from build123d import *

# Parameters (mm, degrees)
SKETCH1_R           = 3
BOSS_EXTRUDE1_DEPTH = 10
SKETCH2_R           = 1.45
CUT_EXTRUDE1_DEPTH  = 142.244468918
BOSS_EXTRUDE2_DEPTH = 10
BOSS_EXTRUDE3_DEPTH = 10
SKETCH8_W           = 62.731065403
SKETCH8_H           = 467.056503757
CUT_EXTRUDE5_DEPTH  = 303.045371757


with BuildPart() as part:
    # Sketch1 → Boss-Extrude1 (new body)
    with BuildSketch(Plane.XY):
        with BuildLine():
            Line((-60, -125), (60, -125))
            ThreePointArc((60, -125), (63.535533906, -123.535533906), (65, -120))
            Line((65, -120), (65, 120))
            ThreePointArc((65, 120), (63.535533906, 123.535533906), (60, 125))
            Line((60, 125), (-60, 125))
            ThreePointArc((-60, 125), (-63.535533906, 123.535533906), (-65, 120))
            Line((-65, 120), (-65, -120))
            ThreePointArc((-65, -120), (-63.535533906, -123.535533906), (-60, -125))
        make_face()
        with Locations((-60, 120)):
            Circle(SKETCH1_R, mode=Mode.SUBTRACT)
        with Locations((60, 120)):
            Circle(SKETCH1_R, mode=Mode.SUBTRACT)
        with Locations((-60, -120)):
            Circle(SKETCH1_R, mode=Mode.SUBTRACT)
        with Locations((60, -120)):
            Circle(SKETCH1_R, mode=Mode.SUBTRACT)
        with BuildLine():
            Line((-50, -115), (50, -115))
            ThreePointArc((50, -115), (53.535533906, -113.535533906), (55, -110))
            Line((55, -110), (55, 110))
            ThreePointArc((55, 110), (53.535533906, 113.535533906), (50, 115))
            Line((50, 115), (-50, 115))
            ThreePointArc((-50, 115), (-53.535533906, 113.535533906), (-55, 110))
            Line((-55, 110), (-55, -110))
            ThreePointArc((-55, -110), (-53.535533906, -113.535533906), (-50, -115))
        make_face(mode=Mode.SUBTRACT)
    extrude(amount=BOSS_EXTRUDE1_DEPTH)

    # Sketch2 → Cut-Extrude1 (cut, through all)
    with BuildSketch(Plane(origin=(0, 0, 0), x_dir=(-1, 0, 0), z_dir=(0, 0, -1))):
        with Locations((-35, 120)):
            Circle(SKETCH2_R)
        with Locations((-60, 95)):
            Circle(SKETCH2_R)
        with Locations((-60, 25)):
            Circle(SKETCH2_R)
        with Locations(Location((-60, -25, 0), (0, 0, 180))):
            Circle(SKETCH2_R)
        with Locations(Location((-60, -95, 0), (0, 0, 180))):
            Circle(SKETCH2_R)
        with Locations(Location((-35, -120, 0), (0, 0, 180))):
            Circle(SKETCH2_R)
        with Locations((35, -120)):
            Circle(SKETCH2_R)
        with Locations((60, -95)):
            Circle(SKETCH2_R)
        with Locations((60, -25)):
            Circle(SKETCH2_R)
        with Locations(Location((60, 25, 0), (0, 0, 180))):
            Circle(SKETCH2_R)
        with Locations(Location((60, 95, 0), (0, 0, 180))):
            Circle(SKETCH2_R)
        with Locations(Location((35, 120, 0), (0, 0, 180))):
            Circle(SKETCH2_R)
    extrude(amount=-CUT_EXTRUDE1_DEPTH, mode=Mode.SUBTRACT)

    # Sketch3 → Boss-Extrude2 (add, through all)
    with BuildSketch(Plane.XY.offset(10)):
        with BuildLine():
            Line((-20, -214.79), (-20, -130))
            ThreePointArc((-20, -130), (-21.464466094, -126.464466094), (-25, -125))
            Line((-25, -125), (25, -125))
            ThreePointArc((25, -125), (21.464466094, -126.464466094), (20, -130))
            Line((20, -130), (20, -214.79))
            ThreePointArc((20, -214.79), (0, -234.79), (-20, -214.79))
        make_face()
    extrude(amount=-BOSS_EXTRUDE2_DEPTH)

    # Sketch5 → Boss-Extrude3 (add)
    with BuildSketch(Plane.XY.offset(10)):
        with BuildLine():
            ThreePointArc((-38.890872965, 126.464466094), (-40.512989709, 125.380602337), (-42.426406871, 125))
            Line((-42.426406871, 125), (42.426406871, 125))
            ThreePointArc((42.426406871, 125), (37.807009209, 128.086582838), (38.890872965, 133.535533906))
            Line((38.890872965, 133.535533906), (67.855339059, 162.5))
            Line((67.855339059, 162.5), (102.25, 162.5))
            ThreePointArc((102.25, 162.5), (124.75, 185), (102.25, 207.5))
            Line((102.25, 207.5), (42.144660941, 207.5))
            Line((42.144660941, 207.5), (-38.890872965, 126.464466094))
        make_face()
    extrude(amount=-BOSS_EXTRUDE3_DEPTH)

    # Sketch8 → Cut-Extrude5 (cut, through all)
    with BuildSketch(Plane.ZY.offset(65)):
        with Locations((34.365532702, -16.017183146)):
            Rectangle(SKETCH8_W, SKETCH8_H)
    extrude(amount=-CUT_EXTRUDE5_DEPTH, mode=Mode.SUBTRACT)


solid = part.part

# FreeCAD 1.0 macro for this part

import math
import FreeCAD as App
import Part
import Sketcher
from FreeCAD import Vector
Q = App.Units.Quantity

doc = App.newDocument("Part")
body = doc.addObject("PartDesign::Body", "Body")

# Sketch on XY plane
sketch1 = body.newObject("Sketcher::SketchObject", "Sketch")
sketch1.AttachmentSupport = (doc.getObject("XY_Plane"), [""])
sketch1.MapMode = "FlatFace"
sketch1.addGeometry([
    Part.LineSegment(Vector(-60, -125, 0), Vector(60, -125, 0)),  # 0
    Part.ArcOfCircle(Part.Circle(Vector(60, -120, 0), Vector(0, 0, 1), 5), math.radians(-90), math.radians(0)),  # 1
    Part.LineSegment(Vector(65, -120, 0), Vector(65, 120, 0)),  # 2
    Part.ArcOfCircle(Part.Circle(Vector(60, 120, 0), Vector(0, 0, 1), 5), math.radians(0), math.radians(90)),  # 3
    Part.LineSegment(Vector(60, 125, 0), Vector(-60, 125, 0)),  # 4
    Part.ArcOfCircle(Part.Circle(Vector(-60, 120, 0), Vector(0, 0, 1), 5), math.radians(90), math.radians(180)),  # 5
    Part.LineSegment(Vector(-65, 120, 0), Vector(-65, -120, 0)),  # 6
    Part.ArcOfCircle(Part.Circle(Vector(-60, -120, 0), Vector(0, 0, 1), 5), math.radians(180), math.radians(270)),  # 7
    Part.Circle(Vector(-60, -120, 0), Vector(0, 0, 1), 3),  # 8
    Part.Circle(Vector(60, -120, 0), Vector(0, 0, 1), 3),  # 9
    Part.Circle(Vector(-60, 120, 0), Vector(0, 0, 1), 3),  # 10
    Part.LineSegment(Vector(50, -115, 0), Vector(-50, -115, 0)),  # 11
    Part.ArcOfCircle(Part.Circle(Vector(-50, -110, 0), Vector(0, 0, 1), 5), math.radians(180), math.radians(270)),  # 12
    Part.LineSegment(Vector(-55, -110, 0), Vector(-55, 110, 0)),  # 13
    Part.ArcOfCircle(Part.Circle(Vector(-50, 110, 0), Vector(0, 0, 1), 5), math.radians(90), math.radians(180)),  # 14
    Part.LineSegment(Vector(-50, 115, 0), Vector(50, 115, 0)),  # 15
    Part.ArcOfCircle(Part.Circle(Vector(50, 110, 0), Vector(0, 0, 1), 5), math.radians(0), math.radians(90)),  # 16
    Part.LineSegment(Vector(55, 110, 0), Vector(55, -110, 0)),  # 17
    Part.ArcOfCircle(Part.Circle(Vector(50, -110, 0), Vector(0, 0, 1), 5), math.radians(-90), math.radians(0)),  # 18
    Part.Circle(Vector(60, 120, 0), Vector(0, 0, 1), 3),  # 19
], False)
sketch1.addConstraint([
    Sketcher.Constraint("Tangent", 0, 2, 1, 1),
    Sketcher.Constraint("Tangent", 1, 2, 2, 1),
    Sketcher.Constraint("Tangent", 2, 2, 3, 1),
    Sketcher.Constraint("Tangent", 3, 2, 4, 1),
    Sketcher.Constraint("Tangent", 4, 2, 5, 1),
    Sketcher.Constraint("Tangent", 5, 2, 6, 1),
    Sketcher.Constraint("Tangent", 6, 2, 7, 1),
    Sketcher.Constraint("Tangent", 7, 2, 0, 1),
    Sketcher.Constraint("Tangent", 11, 2, 12, 2),
    Sketcher.Constraint("Tangent", 12, 1, 13, 1),
    Sketcher.Constraint("Tangent", 13, 2, 14, 2),
    Sketcher.Constraint("Tangent", 14, 1, 15, 1),
    Sketcher.Constraint("Tangent", 15, 2, 16, 2),
    Sketcher.Constraint("Tangent", 16, 1, 17, 1),
    Sketcher.Constraint("Tangent", 17, 2, 18, 2),
    Sketcher.Constraint("Tangent", 18, 1, 11, 1),
    Sketcher.Constraint("Horizontal", 0),
    Sketcher.Constraint("Vertical", 2),
    Sketcher.Constraint("Horizontal", 4),
    Sketcher.Constraint("Vertical", 6),
    Sketcher.Constraint("Horizontal", 11),
    Sketcher.Constraint("Vertical", 13),
    Sketcher.Constraint("Horizontal", 15),
    Sketcher.Constraint("Vertical", 17),
    Sketcher.Constraint("Coincident", 8, 3, 7, 3),
    Sketcher.Constraint("Coincident", 9, 3, 1, 3),
    Sketcher.Constraint("Coincident", 10, 3, 5, 3),
    Sketcher.Constraint("Coincident", 19, 3, 3, 3),
    Sketcher.Constraint("Equal", 1, 3),
    Sketcher.Constraint("Equal", 3, 5),
    Sketcher.Constraint("Equal", 5, 7),
    Sketcher.Constraint("Equal", 8, 9),
    Sketcher.Constraint("Equal", 9, 10),
    Sketcher.Constraint("Equal", 7, 12),
    Sketcher.Constraint("Equal", 12, 14),
    Sketcher.Constraint("Equal", 14, 16),
    Sketcher.Constraint("Equal", 16, 18),
    Sketcher.Constraint("Equal", 10, 19),
    Sketcher.Constraint("Symmetric", 1, 3, 5, 3, -1, 1),
    Sketcher.Constraint("Symmetric", 12, 3, 16, 3, -1, 1),
    Sketcher.Constraint("Diameter", 8, Q("6 mm")),
    Sketcher.Constraint("Radius", 1, Q("5 mm")),
    Sketcher.Constraint("DistanceX", 0, 1, 0, 2, Q("120 mm")),
    Sketcher.Constraint("DistanceX", 11, 2, 11, 1, Q("100 mm")),
    Sketcher.Constraint("DistanceY", 2, 1, 2, 2, Q("240 mm")),
    Sketcher.Constraint("DistanceY", 13, 1, 13, 2, Q("220 mm")),
])
pad1 = body.newObject("PartDesign::Pad", "Pad")
pad1.Profile = sketch1
pad1.Length = 10

# Sketch on XY plane
sketch2 = body.newObject("Sketcher::SketchObject", "Sketch001")
sketch2.AttachmentSupport = (doc.getObject("XY_Plane"), [""])
sketch2.MapMode = "FlatFace"
sketch2.addGeometry([
    Part.Circle(Vector(35, 120, 0), Vector(0, 0, 1), 1.45),  # 0
    Part.Circle(Vector(60, 95, 0), Vector(0, 0, 1), 1.45),  # 1
    Part.Circle(Vector(60, 25, 0), Vector(0, 0, 1), 1.45),  # 2
    Part.Circle(Vector(60, -25, 0), Vector(0, 0, 1), 1.45),  # 3
    Part.Circle(Vector(60, -95, 0), Vector(0, 0, 1), 1.45),  # 4
    Part.Circle(Vector(35, -120, 0), Vector(0, 0, 1), 1.45),  # 5
    Part.Circle(Vector(-35, -120, 0), Vector(0, 0, 1), 1.45),  # 6
    Part.Circle(Vector(-60, -95, 0), Vector(0, 0, 1), 1.45),  # 7
    Part.Circle(Vector(-60, -25, 0), Vector(0, 0, 1), 1.45),  # 8
    Part.Circle(Vector(-60, 25, 0), Vector(0, 0, 1), 1.45),  # 9
    Part.Circle(Vector(-60, 95, 0), Vector(0, 0, 1), 1.45),  # 10
    Part.Circle(Vector(-35, 120, 0), Vector(0, 0, 1), 1.45),  # 11
], False)
sketch2.addConstraint([
    Sketcher.Constraint("Equal", 0, 1),
    Sketcher.Constraint("Equal", 1, 2),
    Sketcher.Constraint("Equal", 2, 3),
    Sketcher.Constraint("Equal", 3, 4),
    Sketcher.Constraint("Equal", 4, 5),
    Sketcher.Constraint("Equal", 5, 6),
    Sketcher.Constraint("Equal", 6, 7),
    Sketcher.Constraint("Equal", 7, 8),
    Sketcher.Constraint("Equal", 8, 9),
    Sketcher.Constraint("Equal", 9, 10),
    Sketcher.Constraint("Equal", 10, 11),
    Sketcher.Constraint("Symmetric", 0, 3, 6, 3, -1, 1),
    Sketcher.Constraint("Symmetric", 1, 3, 7, 3, -1, 1),
    Sketcher.Constraint("Symmetric", 2, 3, 8, 3, -1, 1),
    Sketcher.Constraint("Symmetric", 3, 3, 9, 3, -1, 1),
    Sketcher.Constraint("Symmetric", 4, 3, 10, 3, -1, 1),
    Sketcher.Constraint("Symmetric", 5, 3, 11, 3, -1, 1),
    Sketcher.Constraint("Symmetric", 5, 3, 6, 3, -2),
    Sketcher.Constraint("Symmetric", 4, 3, 7, 3, -2),
    Sketcher.Constraint("Symmetric", 3, 3, 8, 3, -2),
    Sketcher.Constraint("Vertical", 1, 3, 2, 3),
    Sketcher.Constraint("Diameter", 0, Q("2.9 mm")),
    Sketcher.Constraint("DistanceX", -1, 1, 0, 3, Q("35 mm")),
    Sketcher.Constraint("DistanceY", -1, 1, 0, 3, Q("120 mm")),
    Sketcher.Constraint("DistanceX", -1, 1, 1, 3, Q("60 mm")),
    Sketcher.Constraint("DistanceY", -1, 1, 1, 3, Q("95 mm")),
    Sketcher.Constraint("DistanceY", -1, 1, 2, 3, Q("25 mm")),
])
pocket1 = body.newObject("PartDesign::Pocket", "Pocket")
pocket1.Profile = sketch2
pocket1.Type = "ThroughAll"
pocket1.Reversed = True

# Sketch on XY plane
sketch3 = body.newObject("Sketcher::SketchObject", "Sketch002")
sketch3.AttachmentSupport = (doc.getObject("XY_Plane"), [""])
sketch3.MapMode = "FlatFace"
sketch3.AttachmentOffset = App.Placement(Vector(0, 0, 10), App.Rotation())
sketch3.addGeometry([
    Part.LineSegment(Vector(-20, -130, 0), Vector(-20, -214.79, 0)),  # 0
    Part.ArcOfCircle(Part.Circle(Vector(0, -214.79, 0), Vector(0, 0, 1), 20), math.radians(180), math.radians(360)),  # 1
    Part.LineSegment(Vector(20, -214.79, 0), Vector(20, -130, 0)),  # 2
    Part.ArcOfCircle(Part.Circle(Vector(25, -130, 0), Vector(0, 0, 1), 5), math.radians(90), math.radians(180)),  # 3
    Part.LineSegment(Vector(25, -125, 0), Vector(-25, -125, 0)),  # 4
    Part.ArcOfCircle(Part.Circle(Vector(-25, -130, 0), Vector(0, 0, 1), 5), math.radians(0), math.radians(90)),  # 5
], False)
sketch3.addConstraint([
    Sketcher.Constraint("Tangent", 0, 2, 1, 1),
    Sketcher.Constraint("Tangent", 1, 2, 2, 1),
    Sketcher.Constraint("Tangent", 2, 2, 3, 2),
    Sketcher.Constraint("Tangent", 3, 1, 4, 1),
    Sketcher.Constraint("Tangent", 4, 2, 5, 2),
    Sketcher.Constraint("Tangent", 5, 1, 0, 1),
    Sketcher.Constraint("Vertical", 0),
    Sketcher.Constraint("Vertical", 2),
    Sketcher.Constraint("Horizontal", 4),
    Sketcher.Constraint("Equal", 3, 5),
    Sketcher.Constraint("PointOnObject", 1, 3, -2),
    Sketcher.Constraint("Radius", 1, Q("20 mm")),
    Sketcher.Constraint("Radius", 3, Q("5 mm")),
    Sketcher.Constraint("DistanceY", 3, 3, -1, 1, Q("130 mm")),
    Sketcher.Constraint("DistanceY", 0, 2, 0, 1, Q("84.79 mm")),
])
pad2 = body.newObject("PartDesign::Pad", "Pad001")
pad2.Profile = sketch3
pad2.Length = 10
pad2.Reversed = True

# Sketch on XY plane
sketch4 = body.newObject("Sketcher::SketchObject", "Sketch003")
sketch4.AttachmentSupport = (doc.getObject("XY_Plane"), [""])
sketch4.MapMode = "FlatFace"
sketch4.AttachmentOffset = App.Placement(Vector(0, 0, 10), App.Rotation())
sketch4.addGeometry([
    Part.ArcOfCircle(Part.Circle(Vector(-42.426407, 130, 0), Vector(0, 0, 1), 5), math.radians(-90), math.radians(-45)),  # 0
    Part.LineSegment(Vector(-42.426407, 125, 0), Vector(42.426407, 125, 0)),  # 1
    Part.ArcOfCircle(Part.Circle(Vector(42.426407, 130, 0), Vector(0, 0, 1), 5), math.radians(135), math.radians(270)),  # 2
    Part.LineSegment(Vector(38.890873, 133.535534, 0), Vector(67.855339, 162.5, 0)),  # 3
    Part.LineSegment(Vector(67.855339, 162.5, 0), Vector(102.25, 162.5, 0)),  # 4
    Part.ArcOfCircle(Part.Circle(Vector(102.25, 185, 0), Vector(0, 0, 1), 22.5), math.radians(-90), math.radians(90)),  # 5
    Part.LineSegment(Vector(102.25, 207.5, 0), Vector(42.144661, 207.5, 0)),  # 6
    Part.LineSegment(Vector(42.144661, 207.5, 0), Vector(-38.890873, 126.464466, 0)),  # 7
], False)
sketch4.addConstraint([
    Sketcher.Constraint("Tangent", 0, 1, 1, 1),
    Sketcher.Constraint("Tangent", 1, 2, 2, 2),
    Sketcher.Constraint("Tangent", 2, 1, 3, 1),
    Sketcher.Constraint("Coincident", 3, 2, 4, 1),
    Sketcher.Constraint("Tangent", 4, 2, 5, 1),
    Sketcher.Constraint("Tangent", 5, 2, 6, 1),
    Sketcher.Constraint("Coincident", 6, 2, 7, 1),
    Sketcher.Constraint("Tangent", 7, 2, 0, 2),
    Sketcher.Constraint("Horizontal", 1),
    Sketcher.Constraint("Horizontal", 4),
    Sketcher.Constraint("Horizontal", 6),
    Sketcher.Constraint("Equal", 0, 2),
    Sketcher.Constraint("Parallel", 3, 7),
    Sketcher.Constraint("Radius", 0, Q("5 mm")),
    Sketcher.Constraint("Radius", 5, Q("22.5 mm")),
    Sketcher.Constraint("Angle", 3, Q("45 deg")),
    Sketcher.Constraint("DistanceY", -1, 1, 0, 3, Q("130 mm")),
    Sketcher.Constraint("DistanceY", -1, 1, 5, 3, Q("185 mm")),
    Sketcher.Constraint("DistanceX", -1, 1, 5, 3, Q("102.25 mm")),
    Sketcher.Constraint("DistanceX", 4, 1, 4, 2, Q("34.394661 mm")),
    Sketcher.Constraint("DistanceX", 6, 2, 6, 1, Q("60.105339 mm")),
])
pad3 = body.newObject("PartDesign::Pad", "Pad002")
pad3.Profile = sketch4
pad3.Length = 10
pad3.Reversed = True

# Sketch on YZ plane
sketch5 = body.newObject("Sketcher::SketchObject", "Sketch004")
sketch5.AttachmentSupport = (doc.getObject("YZ_Plane"), [""])
sketch5.MapMode = "FlatFace"
sketch5.AttachmentOffset = App.Placement(Vector(0, 0, -65), App.Rotation())
sketch5.addGeometry([
    Part.LineSegment(Vector(217.511069, 3, 0), Vector(-249.545435, 3, 0)),
    Part.LineSegment(Vector(-249.545435, 3, 0), Vector(-249.545435, 65.731065, 0)),
    Part.LineSegment(Vector(-249.545435, 65.731065, 0), Vector(217.511069, 65.731065, 0)),
    Part.LineSegment(Vector(217.511069, 65.731065, 0), Vector(217.511069, 3, 0)),
], False)
sketch5.addConstraint([
    Sketcher.Constraint("Coincident", 0, 2, 1, 1),
    Sketcher.Constraint("Coincident", 1, 2, 2, 1),
    Sketcher.Constraint("Coincident", 2, 2, 3, 1),
    Sketcher.Constraint("Coincident", 3, 2, 0, 1),
    Sketcher.Constraint("Horizontal", 0),
    Sketcher.Constraint("Vertical", 1),
    Sketcher.Constraint("Horizontal", 2),
    Sketcher.Constraint("Vertical", 3),
    Sketcher.Constraint("DistanceY", -1, 1, 0, 2, Q("3 mm")),
    Sketcher.Constraint("DistanceX", 0, 2, 0, 1, Q("467.056504 mm")),
    Sketcher.Constraint("DistanceY", 1, 1, 1, 2, Q("62.731065 mm")),
    Sketcher.Constraint("DistanceX", -1, 1, 2, 2, Q("217.511069 mm")),
])
pocket2 = body.newObject("PartDesign::Pocket", "Pocket001")
pocket2.Profile = sketch5
pocket2.Type = "ThroughAll"
pocket2.Reversed = True

doc.recompute()
